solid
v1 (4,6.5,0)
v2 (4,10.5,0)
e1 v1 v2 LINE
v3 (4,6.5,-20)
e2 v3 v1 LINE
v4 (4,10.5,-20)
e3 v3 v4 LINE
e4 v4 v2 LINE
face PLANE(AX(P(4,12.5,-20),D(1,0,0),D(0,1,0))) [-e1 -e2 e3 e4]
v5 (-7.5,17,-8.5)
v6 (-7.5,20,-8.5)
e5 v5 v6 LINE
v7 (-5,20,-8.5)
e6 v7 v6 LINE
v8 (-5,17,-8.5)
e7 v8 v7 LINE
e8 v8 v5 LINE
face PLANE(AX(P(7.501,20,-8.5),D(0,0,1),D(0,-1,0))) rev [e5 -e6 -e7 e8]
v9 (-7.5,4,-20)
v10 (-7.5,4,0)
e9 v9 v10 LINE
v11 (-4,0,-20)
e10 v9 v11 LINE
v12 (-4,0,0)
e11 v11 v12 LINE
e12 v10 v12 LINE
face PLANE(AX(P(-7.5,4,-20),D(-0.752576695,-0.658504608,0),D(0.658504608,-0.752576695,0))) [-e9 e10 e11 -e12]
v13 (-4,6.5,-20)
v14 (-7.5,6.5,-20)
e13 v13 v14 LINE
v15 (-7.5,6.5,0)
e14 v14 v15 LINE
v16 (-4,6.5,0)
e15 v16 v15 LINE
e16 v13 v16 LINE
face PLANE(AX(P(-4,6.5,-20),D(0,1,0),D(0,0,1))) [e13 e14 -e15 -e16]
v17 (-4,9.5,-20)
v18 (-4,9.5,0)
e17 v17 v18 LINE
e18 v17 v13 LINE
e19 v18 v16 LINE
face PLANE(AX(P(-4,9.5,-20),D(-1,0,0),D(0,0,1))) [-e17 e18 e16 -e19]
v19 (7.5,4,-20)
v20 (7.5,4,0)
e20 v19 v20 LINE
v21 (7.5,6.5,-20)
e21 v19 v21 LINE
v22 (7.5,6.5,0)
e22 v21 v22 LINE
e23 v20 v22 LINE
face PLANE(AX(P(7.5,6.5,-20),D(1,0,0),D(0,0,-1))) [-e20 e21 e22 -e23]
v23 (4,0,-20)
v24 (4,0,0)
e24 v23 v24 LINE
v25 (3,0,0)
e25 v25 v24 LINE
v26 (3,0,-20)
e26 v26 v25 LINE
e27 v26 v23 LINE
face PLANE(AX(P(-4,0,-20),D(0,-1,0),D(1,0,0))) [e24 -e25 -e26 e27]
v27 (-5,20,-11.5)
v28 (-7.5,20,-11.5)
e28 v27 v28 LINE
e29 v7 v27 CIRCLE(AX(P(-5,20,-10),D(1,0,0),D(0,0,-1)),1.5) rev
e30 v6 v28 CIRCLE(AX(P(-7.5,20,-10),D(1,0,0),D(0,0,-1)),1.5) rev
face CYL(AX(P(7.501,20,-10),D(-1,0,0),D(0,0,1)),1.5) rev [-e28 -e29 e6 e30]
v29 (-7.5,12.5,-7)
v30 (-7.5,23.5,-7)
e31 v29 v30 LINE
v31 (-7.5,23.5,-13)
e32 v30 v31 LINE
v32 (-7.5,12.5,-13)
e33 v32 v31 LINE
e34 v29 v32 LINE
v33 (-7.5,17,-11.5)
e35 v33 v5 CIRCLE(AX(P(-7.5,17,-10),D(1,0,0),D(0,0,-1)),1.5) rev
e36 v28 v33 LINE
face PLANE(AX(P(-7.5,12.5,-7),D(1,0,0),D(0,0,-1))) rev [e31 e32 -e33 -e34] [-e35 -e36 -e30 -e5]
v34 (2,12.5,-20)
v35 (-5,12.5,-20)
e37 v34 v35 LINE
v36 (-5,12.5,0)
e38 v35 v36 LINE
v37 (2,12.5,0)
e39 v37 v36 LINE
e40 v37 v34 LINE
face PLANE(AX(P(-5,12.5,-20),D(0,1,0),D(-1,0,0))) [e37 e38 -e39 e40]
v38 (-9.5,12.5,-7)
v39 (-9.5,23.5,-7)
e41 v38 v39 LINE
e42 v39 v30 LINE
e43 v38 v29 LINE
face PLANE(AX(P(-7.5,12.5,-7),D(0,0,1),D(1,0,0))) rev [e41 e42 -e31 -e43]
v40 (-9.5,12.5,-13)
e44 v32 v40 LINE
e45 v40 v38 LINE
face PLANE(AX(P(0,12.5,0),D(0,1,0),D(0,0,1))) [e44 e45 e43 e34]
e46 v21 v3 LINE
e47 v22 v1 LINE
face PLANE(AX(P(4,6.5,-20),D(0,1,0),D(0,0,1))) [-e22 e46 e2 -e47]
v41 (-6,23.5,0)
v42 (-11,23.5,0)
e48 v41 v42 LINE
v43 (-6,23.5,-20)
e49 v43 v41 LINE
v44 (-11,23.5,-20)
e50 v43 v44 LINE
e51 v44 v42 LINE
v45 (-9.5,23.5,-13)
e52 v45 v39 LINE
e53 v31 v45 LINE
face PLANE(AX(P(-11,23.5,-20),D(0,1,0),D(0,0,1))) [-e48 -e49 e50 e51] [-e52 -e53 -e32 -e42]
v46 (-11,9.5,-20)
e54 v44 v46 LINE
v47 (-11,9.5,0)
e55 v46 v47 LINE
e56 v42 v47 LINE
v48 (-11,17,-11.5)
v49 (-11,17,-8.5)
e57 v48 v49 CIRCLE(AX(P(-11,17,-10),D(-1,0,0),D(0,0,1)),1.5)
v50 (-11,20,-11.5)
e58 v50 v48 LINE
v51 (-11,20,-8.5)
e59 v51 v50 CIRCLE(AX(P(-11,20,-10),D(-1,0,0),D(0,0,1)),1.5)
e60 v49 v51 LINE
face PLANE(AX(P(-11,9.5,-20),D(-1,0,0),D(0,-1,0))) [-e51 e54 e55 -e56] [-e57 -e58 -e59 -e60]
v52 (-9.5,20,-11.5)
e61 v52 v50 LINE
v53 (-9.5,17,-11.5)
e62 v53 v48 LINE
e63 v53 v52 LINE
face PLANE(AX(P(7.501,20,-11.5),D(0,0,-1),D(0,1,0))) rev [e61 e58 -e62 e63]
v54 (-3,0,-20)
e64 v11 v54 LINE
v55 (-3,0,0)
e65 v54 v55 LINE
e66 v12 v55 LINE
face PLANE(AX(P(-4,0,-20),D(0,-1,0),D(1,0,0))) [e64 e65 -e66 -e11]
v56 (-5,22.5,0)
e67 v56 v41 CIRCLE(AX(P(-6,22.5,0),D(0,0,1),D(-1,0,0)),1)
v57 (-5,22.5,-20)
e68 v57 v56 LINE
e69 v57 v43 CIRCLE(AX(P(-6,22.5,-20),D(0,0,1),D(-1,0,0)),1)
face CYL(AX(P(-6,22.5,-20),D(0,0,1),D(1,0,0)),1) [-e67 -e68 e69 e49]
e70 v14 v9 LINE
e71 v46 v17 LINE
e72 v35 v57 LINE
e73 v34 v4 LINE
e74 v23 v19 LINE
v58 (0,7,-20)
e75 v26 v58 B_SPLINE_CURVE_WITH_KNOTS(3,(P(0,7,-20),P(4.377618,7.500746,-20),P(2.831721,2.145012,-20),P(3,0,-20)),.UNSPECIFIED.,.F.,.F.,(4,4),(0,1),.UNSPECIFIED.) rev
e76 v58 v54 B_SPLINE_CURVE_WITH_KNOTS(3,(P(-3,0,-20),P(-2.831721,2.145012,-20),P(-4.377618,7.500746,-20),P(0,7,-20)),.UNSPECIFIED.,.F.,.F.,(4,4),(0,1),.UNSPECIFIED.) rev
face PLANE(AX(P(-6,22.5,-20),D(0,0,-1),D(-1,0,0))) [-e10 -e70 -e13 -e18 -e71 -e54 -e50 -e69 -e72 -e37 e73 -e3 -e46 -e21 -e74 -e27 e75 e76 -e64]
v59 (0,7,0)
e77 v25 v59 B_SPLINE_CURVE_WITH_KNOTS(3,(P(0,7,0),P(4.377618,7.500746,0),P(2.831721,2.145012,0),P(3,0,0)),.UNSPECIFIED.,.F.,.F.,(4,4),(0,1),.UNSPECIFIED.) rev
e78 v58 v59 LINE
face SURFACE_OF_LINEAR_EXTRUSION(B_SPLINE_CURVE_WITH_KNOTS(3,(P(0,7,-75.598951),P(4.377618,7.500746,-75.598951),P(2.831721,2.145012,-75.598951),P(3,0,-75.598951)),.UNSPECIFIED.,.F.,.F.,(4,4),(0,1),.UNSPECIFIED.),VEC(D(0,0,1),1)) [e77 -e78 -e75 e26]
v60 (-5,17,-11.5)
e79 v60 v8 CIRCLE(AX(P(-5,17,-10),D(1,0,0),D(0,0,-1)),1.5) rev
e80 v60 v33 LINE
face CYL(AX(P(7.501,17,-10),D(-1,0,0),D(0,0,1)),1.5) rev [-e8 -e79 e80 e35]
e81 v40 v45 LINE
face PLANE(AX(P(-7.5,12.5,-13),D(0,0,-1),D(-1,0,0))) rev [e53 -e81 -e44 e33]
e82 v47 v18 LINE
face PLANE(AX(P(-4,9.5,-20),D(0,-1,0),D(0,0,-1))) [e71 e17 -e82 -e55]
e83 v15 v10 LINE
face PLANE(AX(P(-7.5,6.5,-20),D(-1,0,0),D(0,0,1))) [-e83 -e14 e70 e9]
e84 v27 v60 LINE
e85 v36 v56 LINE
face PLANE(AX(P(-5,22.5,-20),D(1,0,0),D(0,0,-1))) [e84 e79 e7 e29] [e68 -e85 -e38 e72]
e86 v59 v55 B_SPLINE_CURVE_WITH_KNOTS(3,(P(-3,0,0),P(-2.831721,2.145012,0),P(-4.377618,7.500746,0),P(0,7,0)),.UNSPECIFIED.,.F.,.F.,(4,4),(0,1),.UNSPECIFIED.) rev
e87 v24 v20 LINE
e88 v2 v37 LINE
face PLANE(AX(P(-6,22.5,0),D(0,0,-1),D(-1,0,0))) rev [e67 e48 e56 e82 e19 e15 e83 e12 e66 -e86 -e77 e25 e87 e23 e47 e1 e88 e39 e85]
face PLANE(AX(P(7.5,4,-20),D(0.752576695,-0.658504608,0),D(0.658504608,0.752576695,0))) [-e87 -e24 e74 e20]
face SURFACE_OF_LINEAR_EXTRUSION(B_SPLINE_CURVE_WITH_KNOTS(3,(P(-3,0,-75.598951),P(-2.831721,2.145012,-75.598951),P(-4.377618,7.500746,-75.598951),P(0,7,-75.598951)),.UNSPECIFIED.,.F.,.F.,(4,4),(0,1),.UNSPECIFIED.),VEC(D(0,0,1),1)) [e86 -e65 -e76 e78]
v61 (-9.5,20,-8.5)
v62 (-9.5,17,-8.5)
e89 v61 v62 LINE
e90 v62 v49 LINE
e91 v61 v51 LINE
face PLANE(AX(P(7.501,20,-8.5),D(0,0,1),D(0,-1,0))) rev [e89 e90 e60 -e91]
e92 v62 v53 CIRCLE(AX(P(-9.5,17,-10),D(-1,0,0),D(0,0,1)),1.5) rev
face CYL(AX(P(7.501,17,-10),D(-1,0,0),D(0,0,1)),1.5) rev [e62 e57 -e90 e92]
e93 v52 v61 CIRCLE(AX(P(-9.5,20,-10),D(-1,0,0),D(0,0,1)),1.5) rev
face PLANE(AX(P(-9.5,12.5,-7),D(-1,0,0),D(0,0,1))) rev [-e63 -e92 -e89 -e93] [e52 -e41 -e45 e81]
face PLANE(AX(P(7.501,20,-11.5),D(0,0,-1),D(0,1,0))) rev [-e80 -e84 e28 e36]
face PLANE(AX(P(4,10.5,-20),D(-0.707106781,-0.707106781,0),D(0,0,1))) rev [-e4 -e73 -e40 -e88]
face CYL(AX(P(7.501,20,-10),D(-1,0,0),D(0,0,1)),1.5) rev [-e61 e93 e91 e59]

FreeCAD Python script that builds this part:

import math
import FreeCAD as App
import Part
import Sketcher


def edges_at(feature, points):
    """Names of the edges that pass closest to the given points."""
    edges = feature.Shape.Edges
    near = lambda p: min(range(len(edges)), key=lambda i: edges[i].distToShape(Part.Vertex(*p))[0])
    return sorted({f"Edge{near(p) + 1}" for p in points})

doc = App.newDocument("Part")
params = doc.addObject("Spreadsheet::Sheet", "Params")
for row, (alias, value) in enumerate([
    ("sketch1_radius", "1 mm"),
    ("sketch1_width", "7 mm"),
    ("sketch1_width2", "8 mm"),
    ("sketch1_width3", "9 mm"),
    ("sketch1_height", "3 mm"),
    ("pad1_length", "20 mm"),
    ("sketch2_radius", "1.5 mm"),
    ("sketch2_width", "3 mm"),
    ("sketch3_width", "2 mm"),
    ("sketch3_height", "6 mm"),
    ("pocket2_length", "11 mm"),
    ("chamfer_size", "2 mm"),
], start=1):
    params.set(f"A{row}", alias)
    params.set(f"B{row}", "=" + value)
    params.setAlias(f"B{row}", alias)

body = doc.addObject("PartDesign::Body", "Body")

# Sketch on XY plane
sketch1 = body.newObject("Sketcher::SketchObject", "Sketch")
sketch1.AttachmentSupport = (doc.getObject("XY_Plane"), [""])
sketch1.MapMode = "FlatFace"
sketch1.addGeometry([
    Part.LineSegment(App.Vector(-11, 9.5, 0), App.Vector(-4, 9.5, 0)),  # 0
    Part.LineSegment(App.Vector(-4, 9.5, 0), App.Vector(-4, 6.5, 0)),  # 1
    Part.LineSegment(App.Vector(-4, 6.5, 0), App.Vector(-7.5, 6.5, 0)),  # 2
    Part.LineSegment(App.Vector(-7.5, 6.5, 0), App.Vector(-7.5, 4, 0)),  # 3
    Part.LineSegment(App.Vector(-7.5, 4, 0), App.Vector(-4, 0, 0)),  # 4
    Part.LineSegment(App.Vector(-4, 0, 0), App.Vector(4, 0, 0)),  # 5
    Part.LineSegment(App.Vector(4, 0, 0), App.Vector(7.5, 4, 0)),  # 6
    Part.LineSegment(App.Vector(7.5, 4, 0), App.Vector(7.5, 6.5, 0)),  # 7
    Part.LineSegment(App.Vector(7.5, 6.5, 0), App.Vector(4, 6.5, 0)),  # 8
    Part.LineSegment(App.Vector(4, 6.5, 0), App.Vector(4, 12.5, 0)),  # 9
    Part.LineSegment(App.Vector(4, 12.5, 0), App.Vector(-5, 12.5, 0)),  # 10
    Part.LineSegment(App.Vector(-5, 12.5, 0), App.Vector(-5, 22.5, 0)),  # 11
    Part.ArcOfCircle(Part.Circle(App.Vector(-6, 22.5, 0), App.Vector(0, 0, 1), 1), math.radians(0), math.radians(90)),  # 12
    Part.LineSegment(App.Vector(-6, 23.5, 0), App.Vector(-11, 23.5, 0)),  # 13
    Part.LineSegment(App.Vector(-11, 23.5, 0), App.Vector(-11, 9.5, 0)),  # 14
], False)
sketch1.addConstraint([
    Sketcher.Constraint("Coincident", 0, 2, 1, 1),
    Sketcher.Constraint("Coincident", 1, 2, 2, 1),
    Sketcher.Constraint("Coincident", 2, 2, 3, 1),
    Sketcher.Constraint("Coincident", 3, 2, 4, 1),
    Sketcher.Constraint("Coincident", 4, 2, 5, 1),
    Sketcher.Constraint("Coincident", 5, 2, 6, 1),
    Sketcher.Constraint("Coincident", 6, 2, 7, 1),
    Sketcher.Constraint("Coincident", 7, 2, 8, 1),
    Sketcher.Constraint("Coincident", 8, 2, 9, 1),
    Sketcher.Constraint("Coincident", 9, 2, 10, 1),
    Sketcher.Constraint("Coincident", 10, 2, 11, 1),
    Sketcher.Constraint("Tangent", 11, 2, 12, 1),
    Sketcher.Constraint("Tangent", 12, 2, 13, 1),
    Sketcher.Constraint("Coincident", 13, 2, 14, 1),
    Sketcher.Constraint("Coincident", 14, 2, 0, 1),
    Sketcher.Constraint("Horizontal", 0),
    Sketcher.Constraint("Vertical", 1),
    Sketcher.Constraint("Horizontal", 2),
    Sketcher.Constraint("Vertical", 3),
    Sketcher.Constraint("Horizontal", 5),
    Sketcher.Constraint("Vertical", 7),
    Sketcher.Constraint("Horizontal", 8),
    Sketcher.Constraint("Vertical", 9),
    Sketcher.Constraint("Horizontal", 10),
    Sketcher.Constraint("Vertical", 11),
    Sketcher.Constraint("Horizontal", 13),
    Sketcher.Constraint("Vertical", 14),
    Sketcher.Constraint("Symmetric", 4, 2, 5, 2, -1, 1),
    Sketcher.Constraint("Symmetric", 3, 2, 6, 2, -2),
    Sketcher.Constraint("Symmetric", 1, 2, 8, 2, -2),
    Sketcher.Constraint("Vertical", 1, 2, 4, 2),
    Sketcher.Constraint("Radius", 12, 1.0),
    Sketcher.Constraint("DistanceX", 0, 1, 0, 2, 7.0),
    Sketcher.Constraint("DistanceX", 5, 1, 5, 2, 8.0),
    Sketcher.Constraint("DistanceX", 10, 2, 10, 1, 9.0),
    Sketcher.Constraint("DistanceY", 1, 2, 1, 1, 3.0),
    Sketcher.Constraint("DistanceY", 9, 1, 9, 2, 6.0),
    Sketcher.Constraint("DistanceY", 11, 1, 11, 2, 10.0),
    Sketcher.Constraint("DistanceX", 2, 2, 2, 1, 3.5),
    Sketcher.Constraint("DistanceY", 3, 2, 3, 1, 2.5),
    Sketcher.Constraint("DistanceY", -1, 1, 3, 2, 4.0),
])
sketch1.setExpression("Constraints[31]", "Params.sketch1_radius")
sketch1.setExpression("Constraints[32]", "Params.sketch1_width")
sketch1.setExpression("Constraints[33]", "Params.sketch1_width2")
sketch1.setExpression("Constraints[34]", "Params.sketch1_width3")
sketch1.setExpression("Constraints[35]", "Params.sketch1_height")
pad1 = body.newObject("PartDesign::Pad", "Pad")
pad1.Profile = sketch1
pad1.setExpression("Length", "Params.pad1_length")
pad1.Reversed = True

# Sketch on YZ plane
sketch2 = body.newObject("Sketcher::SketchObject", "Sketch001")
sketch2.AttachmentSupport = (doc.getObject("YZ_Plane"), [""])
sketch2.MapMode = "FlatFace"
sketch2.AttachmentOffset = App.Placement(App.Vector(0, 0, -11), App.Rotation())
sketch2.addGeometry([
    Part.LineSegment(App.Vector(17, -8.5, 0), App.Vector(20, -8.5, 0)),
    Part.ArcOfCircle(Part.Circle(App.Vector(20, -10, 0), App.Vector(0, 0, 1), 1.5), math.radians(-90), math.radians(90)),
    Part.LineSegment(App.Vector(20, -11.5, 0), App.Vector(17, -11.5, 0)),
    Part.ArcOfCircle(Part.Circle(App.Vector(17, -10, 0), App.Vector(0, 0, 1), 1.5), math.radians(90), math.radians(270)),
], False)
sketch2.addConstraint([
    Sketcher.Constraint("Tangent", 0, 2, 1, 2),
    Sketcher.Constraint("Tangent", 1, 1, 2, 1),
    Sketcher.Constraint("Tangent", 2, 2, 3, 2),
    Sketcher.Constraint("Tangent", 3, 1, 0, 1),
    Sketcher.Constraint("Horizontal", 0),
    Sketcher.Constraint("Horizontal", 2),
    Sketcher.Constraint("Radius", 1, 1.5),
    Sketcher.Constraint("DistanceX", 0, 1, 0, 2, 3.0),
    Sketcher.Constraint("DistanceX", -1, 1, 1, 3, 20.0),
    Sketcher.Constraint("DistanceY", 1, 3, -1, 1, 10.0),
])
sketch2.setExpression("Constraints[6]", "Params.sketch2_radius")
sketch2.setExpression("Constraints[7]", "Params.sketch2_width")
pocket1 = body.newObject("PartDesign::Pocket", "Pocket")
pocket1.Profile = sketch2
pocket1.Type = "UpToFirst"
pocket1.Reversed = True

# Sketch on XZ plane
sketch3 = body.newObject("Sketcher::SketchObject", "Sketch002")
sketch3.AttachmentSupport = (doc.getObject("XZ_Plane"), [""])
sketch3.MapMode = "FlatFace"
sketch3.AttachmentOffset = App.Placement(App.Vector(0, 0, -23.5), App.Rotation())
sketch3.addGeometry([
    Part.LineSegment(App.Vector(-9.5, -13, 0), App.Vector(-9.5, -7, 0)),
    Part.LineSegment(App.Vector(-9.5, -7, 0), App.Vector(-7.5, -7, 0)),
    Part.LineSegment(App.Vector(-7.5, -7, 0), App.Vector(-7.5, -13, 0)),
    Part.LineSegment(App.Vector(-7.5, -13, 0), App.Vector(-9.5, -13, 0)),
], False)
sketch3.addConstraint([
    Sketcher.Constraint("Coincident", 0, 2, 1, 1),
    Sketcher.Constraint("Coincident", 1, 2, 2, 1),
    Sketcher.Constraint("Coincident", 2, 2, 3, 1),
    Sketcher.Constraint("Coincident", 3, 2, 0, 1),
    Sketcher.Constraint("Vertical", 0),
    Sketcher.Constraint("Horizontal", 1),
    Sketcher.Constraint("Vertical", 2),
    Sketcher.Constraint("Horizontal", 3),
    Sketcher.Constraint("DistanceX", 1, 1, 1, 2, 2.0),
    Sketcher.Constraint("DistanceY", 0, 1, 0, 2, 6.0),
    Sketcher.Constraint("DistanceY", 0, 2, -1, 1, 7.0),
    Sketcher.Constraint("DistanceX", 0, 2, -1, 1, 9.5),
])
sketch3.setExpression("Constraints[8]", "Params.sketch3_width")
sketch3.setExpression("Constraints[9]", "Params.sketch3_height")
pocket2 = body.newObject("PartDesign::Pocket", "Pocket001")
pocket2.Profile = sketch3
pocket2.setExpression("Length", "Params.pocket2_length")
pocket2.Reversed = True

# Sketch on XY plane
sketch4 = body.newObject("Sketcher::SketchObject", "Sketch003")
sketch4.AttachmentSupport = (doc.getObject("XY_Plane"), [""])
sketch4.MapMode = "FlatFace"
sketch4.AttachmentOffset = App.Placement(App.Vector(0, 0, -20), App.Rotation())
sketch4.addGeometry([
    Part.BSplineCurve([App.Vector(3, 0, 0), App.Vector(2.831721, 2.145012, 0), App.Vector(4.377618, 7.500746, 0), App.Vector(0, 7, 0)], [4, 4], [0, 1], False, 3, [1, 1, 1, 1], False),
    Part.LineSegment(App.Vector(3, 0, 0), App.Vector(-3, 0, 0)),
    Part.BSplineCurve([App.Vector(-3, 0, 0), App.Vector(-2.831721, 2.145012, 0), App.Vector(-4.377618, 7.500746, 0), App.Vector(0, 7, 0)], [4, 4], [0, 1], False, 3, [1, 1, 1, 1], False),
], False)
sketch4.addConstraint([
    Sketcher.Constraint("Block", 0),
    Sketcher.Constraint("Block", 2),
    Sketcher.Constraint("Coincident", 0, 1, 1, 1),
    Sketcher.Constraint("Coincident", 1, 2, 2, 1),
])
pocket3 = body.newObject("PartDesign::Pocket", "Pocket002")
pocket3.Profile = sketch4
pocket3.Type = "ThroughAll"
pocket3.Midplane = True
doc.recompute()

chamfer = body.newObject("PartDesign::Chamfer", "Chamfer")
chamfer.Base = (pocket3, edges_at(pocket3, [(4, 12.5, -10)]))
chamfer.setExpression("Size", "Params.chamfer_size")

doc.recompute()
